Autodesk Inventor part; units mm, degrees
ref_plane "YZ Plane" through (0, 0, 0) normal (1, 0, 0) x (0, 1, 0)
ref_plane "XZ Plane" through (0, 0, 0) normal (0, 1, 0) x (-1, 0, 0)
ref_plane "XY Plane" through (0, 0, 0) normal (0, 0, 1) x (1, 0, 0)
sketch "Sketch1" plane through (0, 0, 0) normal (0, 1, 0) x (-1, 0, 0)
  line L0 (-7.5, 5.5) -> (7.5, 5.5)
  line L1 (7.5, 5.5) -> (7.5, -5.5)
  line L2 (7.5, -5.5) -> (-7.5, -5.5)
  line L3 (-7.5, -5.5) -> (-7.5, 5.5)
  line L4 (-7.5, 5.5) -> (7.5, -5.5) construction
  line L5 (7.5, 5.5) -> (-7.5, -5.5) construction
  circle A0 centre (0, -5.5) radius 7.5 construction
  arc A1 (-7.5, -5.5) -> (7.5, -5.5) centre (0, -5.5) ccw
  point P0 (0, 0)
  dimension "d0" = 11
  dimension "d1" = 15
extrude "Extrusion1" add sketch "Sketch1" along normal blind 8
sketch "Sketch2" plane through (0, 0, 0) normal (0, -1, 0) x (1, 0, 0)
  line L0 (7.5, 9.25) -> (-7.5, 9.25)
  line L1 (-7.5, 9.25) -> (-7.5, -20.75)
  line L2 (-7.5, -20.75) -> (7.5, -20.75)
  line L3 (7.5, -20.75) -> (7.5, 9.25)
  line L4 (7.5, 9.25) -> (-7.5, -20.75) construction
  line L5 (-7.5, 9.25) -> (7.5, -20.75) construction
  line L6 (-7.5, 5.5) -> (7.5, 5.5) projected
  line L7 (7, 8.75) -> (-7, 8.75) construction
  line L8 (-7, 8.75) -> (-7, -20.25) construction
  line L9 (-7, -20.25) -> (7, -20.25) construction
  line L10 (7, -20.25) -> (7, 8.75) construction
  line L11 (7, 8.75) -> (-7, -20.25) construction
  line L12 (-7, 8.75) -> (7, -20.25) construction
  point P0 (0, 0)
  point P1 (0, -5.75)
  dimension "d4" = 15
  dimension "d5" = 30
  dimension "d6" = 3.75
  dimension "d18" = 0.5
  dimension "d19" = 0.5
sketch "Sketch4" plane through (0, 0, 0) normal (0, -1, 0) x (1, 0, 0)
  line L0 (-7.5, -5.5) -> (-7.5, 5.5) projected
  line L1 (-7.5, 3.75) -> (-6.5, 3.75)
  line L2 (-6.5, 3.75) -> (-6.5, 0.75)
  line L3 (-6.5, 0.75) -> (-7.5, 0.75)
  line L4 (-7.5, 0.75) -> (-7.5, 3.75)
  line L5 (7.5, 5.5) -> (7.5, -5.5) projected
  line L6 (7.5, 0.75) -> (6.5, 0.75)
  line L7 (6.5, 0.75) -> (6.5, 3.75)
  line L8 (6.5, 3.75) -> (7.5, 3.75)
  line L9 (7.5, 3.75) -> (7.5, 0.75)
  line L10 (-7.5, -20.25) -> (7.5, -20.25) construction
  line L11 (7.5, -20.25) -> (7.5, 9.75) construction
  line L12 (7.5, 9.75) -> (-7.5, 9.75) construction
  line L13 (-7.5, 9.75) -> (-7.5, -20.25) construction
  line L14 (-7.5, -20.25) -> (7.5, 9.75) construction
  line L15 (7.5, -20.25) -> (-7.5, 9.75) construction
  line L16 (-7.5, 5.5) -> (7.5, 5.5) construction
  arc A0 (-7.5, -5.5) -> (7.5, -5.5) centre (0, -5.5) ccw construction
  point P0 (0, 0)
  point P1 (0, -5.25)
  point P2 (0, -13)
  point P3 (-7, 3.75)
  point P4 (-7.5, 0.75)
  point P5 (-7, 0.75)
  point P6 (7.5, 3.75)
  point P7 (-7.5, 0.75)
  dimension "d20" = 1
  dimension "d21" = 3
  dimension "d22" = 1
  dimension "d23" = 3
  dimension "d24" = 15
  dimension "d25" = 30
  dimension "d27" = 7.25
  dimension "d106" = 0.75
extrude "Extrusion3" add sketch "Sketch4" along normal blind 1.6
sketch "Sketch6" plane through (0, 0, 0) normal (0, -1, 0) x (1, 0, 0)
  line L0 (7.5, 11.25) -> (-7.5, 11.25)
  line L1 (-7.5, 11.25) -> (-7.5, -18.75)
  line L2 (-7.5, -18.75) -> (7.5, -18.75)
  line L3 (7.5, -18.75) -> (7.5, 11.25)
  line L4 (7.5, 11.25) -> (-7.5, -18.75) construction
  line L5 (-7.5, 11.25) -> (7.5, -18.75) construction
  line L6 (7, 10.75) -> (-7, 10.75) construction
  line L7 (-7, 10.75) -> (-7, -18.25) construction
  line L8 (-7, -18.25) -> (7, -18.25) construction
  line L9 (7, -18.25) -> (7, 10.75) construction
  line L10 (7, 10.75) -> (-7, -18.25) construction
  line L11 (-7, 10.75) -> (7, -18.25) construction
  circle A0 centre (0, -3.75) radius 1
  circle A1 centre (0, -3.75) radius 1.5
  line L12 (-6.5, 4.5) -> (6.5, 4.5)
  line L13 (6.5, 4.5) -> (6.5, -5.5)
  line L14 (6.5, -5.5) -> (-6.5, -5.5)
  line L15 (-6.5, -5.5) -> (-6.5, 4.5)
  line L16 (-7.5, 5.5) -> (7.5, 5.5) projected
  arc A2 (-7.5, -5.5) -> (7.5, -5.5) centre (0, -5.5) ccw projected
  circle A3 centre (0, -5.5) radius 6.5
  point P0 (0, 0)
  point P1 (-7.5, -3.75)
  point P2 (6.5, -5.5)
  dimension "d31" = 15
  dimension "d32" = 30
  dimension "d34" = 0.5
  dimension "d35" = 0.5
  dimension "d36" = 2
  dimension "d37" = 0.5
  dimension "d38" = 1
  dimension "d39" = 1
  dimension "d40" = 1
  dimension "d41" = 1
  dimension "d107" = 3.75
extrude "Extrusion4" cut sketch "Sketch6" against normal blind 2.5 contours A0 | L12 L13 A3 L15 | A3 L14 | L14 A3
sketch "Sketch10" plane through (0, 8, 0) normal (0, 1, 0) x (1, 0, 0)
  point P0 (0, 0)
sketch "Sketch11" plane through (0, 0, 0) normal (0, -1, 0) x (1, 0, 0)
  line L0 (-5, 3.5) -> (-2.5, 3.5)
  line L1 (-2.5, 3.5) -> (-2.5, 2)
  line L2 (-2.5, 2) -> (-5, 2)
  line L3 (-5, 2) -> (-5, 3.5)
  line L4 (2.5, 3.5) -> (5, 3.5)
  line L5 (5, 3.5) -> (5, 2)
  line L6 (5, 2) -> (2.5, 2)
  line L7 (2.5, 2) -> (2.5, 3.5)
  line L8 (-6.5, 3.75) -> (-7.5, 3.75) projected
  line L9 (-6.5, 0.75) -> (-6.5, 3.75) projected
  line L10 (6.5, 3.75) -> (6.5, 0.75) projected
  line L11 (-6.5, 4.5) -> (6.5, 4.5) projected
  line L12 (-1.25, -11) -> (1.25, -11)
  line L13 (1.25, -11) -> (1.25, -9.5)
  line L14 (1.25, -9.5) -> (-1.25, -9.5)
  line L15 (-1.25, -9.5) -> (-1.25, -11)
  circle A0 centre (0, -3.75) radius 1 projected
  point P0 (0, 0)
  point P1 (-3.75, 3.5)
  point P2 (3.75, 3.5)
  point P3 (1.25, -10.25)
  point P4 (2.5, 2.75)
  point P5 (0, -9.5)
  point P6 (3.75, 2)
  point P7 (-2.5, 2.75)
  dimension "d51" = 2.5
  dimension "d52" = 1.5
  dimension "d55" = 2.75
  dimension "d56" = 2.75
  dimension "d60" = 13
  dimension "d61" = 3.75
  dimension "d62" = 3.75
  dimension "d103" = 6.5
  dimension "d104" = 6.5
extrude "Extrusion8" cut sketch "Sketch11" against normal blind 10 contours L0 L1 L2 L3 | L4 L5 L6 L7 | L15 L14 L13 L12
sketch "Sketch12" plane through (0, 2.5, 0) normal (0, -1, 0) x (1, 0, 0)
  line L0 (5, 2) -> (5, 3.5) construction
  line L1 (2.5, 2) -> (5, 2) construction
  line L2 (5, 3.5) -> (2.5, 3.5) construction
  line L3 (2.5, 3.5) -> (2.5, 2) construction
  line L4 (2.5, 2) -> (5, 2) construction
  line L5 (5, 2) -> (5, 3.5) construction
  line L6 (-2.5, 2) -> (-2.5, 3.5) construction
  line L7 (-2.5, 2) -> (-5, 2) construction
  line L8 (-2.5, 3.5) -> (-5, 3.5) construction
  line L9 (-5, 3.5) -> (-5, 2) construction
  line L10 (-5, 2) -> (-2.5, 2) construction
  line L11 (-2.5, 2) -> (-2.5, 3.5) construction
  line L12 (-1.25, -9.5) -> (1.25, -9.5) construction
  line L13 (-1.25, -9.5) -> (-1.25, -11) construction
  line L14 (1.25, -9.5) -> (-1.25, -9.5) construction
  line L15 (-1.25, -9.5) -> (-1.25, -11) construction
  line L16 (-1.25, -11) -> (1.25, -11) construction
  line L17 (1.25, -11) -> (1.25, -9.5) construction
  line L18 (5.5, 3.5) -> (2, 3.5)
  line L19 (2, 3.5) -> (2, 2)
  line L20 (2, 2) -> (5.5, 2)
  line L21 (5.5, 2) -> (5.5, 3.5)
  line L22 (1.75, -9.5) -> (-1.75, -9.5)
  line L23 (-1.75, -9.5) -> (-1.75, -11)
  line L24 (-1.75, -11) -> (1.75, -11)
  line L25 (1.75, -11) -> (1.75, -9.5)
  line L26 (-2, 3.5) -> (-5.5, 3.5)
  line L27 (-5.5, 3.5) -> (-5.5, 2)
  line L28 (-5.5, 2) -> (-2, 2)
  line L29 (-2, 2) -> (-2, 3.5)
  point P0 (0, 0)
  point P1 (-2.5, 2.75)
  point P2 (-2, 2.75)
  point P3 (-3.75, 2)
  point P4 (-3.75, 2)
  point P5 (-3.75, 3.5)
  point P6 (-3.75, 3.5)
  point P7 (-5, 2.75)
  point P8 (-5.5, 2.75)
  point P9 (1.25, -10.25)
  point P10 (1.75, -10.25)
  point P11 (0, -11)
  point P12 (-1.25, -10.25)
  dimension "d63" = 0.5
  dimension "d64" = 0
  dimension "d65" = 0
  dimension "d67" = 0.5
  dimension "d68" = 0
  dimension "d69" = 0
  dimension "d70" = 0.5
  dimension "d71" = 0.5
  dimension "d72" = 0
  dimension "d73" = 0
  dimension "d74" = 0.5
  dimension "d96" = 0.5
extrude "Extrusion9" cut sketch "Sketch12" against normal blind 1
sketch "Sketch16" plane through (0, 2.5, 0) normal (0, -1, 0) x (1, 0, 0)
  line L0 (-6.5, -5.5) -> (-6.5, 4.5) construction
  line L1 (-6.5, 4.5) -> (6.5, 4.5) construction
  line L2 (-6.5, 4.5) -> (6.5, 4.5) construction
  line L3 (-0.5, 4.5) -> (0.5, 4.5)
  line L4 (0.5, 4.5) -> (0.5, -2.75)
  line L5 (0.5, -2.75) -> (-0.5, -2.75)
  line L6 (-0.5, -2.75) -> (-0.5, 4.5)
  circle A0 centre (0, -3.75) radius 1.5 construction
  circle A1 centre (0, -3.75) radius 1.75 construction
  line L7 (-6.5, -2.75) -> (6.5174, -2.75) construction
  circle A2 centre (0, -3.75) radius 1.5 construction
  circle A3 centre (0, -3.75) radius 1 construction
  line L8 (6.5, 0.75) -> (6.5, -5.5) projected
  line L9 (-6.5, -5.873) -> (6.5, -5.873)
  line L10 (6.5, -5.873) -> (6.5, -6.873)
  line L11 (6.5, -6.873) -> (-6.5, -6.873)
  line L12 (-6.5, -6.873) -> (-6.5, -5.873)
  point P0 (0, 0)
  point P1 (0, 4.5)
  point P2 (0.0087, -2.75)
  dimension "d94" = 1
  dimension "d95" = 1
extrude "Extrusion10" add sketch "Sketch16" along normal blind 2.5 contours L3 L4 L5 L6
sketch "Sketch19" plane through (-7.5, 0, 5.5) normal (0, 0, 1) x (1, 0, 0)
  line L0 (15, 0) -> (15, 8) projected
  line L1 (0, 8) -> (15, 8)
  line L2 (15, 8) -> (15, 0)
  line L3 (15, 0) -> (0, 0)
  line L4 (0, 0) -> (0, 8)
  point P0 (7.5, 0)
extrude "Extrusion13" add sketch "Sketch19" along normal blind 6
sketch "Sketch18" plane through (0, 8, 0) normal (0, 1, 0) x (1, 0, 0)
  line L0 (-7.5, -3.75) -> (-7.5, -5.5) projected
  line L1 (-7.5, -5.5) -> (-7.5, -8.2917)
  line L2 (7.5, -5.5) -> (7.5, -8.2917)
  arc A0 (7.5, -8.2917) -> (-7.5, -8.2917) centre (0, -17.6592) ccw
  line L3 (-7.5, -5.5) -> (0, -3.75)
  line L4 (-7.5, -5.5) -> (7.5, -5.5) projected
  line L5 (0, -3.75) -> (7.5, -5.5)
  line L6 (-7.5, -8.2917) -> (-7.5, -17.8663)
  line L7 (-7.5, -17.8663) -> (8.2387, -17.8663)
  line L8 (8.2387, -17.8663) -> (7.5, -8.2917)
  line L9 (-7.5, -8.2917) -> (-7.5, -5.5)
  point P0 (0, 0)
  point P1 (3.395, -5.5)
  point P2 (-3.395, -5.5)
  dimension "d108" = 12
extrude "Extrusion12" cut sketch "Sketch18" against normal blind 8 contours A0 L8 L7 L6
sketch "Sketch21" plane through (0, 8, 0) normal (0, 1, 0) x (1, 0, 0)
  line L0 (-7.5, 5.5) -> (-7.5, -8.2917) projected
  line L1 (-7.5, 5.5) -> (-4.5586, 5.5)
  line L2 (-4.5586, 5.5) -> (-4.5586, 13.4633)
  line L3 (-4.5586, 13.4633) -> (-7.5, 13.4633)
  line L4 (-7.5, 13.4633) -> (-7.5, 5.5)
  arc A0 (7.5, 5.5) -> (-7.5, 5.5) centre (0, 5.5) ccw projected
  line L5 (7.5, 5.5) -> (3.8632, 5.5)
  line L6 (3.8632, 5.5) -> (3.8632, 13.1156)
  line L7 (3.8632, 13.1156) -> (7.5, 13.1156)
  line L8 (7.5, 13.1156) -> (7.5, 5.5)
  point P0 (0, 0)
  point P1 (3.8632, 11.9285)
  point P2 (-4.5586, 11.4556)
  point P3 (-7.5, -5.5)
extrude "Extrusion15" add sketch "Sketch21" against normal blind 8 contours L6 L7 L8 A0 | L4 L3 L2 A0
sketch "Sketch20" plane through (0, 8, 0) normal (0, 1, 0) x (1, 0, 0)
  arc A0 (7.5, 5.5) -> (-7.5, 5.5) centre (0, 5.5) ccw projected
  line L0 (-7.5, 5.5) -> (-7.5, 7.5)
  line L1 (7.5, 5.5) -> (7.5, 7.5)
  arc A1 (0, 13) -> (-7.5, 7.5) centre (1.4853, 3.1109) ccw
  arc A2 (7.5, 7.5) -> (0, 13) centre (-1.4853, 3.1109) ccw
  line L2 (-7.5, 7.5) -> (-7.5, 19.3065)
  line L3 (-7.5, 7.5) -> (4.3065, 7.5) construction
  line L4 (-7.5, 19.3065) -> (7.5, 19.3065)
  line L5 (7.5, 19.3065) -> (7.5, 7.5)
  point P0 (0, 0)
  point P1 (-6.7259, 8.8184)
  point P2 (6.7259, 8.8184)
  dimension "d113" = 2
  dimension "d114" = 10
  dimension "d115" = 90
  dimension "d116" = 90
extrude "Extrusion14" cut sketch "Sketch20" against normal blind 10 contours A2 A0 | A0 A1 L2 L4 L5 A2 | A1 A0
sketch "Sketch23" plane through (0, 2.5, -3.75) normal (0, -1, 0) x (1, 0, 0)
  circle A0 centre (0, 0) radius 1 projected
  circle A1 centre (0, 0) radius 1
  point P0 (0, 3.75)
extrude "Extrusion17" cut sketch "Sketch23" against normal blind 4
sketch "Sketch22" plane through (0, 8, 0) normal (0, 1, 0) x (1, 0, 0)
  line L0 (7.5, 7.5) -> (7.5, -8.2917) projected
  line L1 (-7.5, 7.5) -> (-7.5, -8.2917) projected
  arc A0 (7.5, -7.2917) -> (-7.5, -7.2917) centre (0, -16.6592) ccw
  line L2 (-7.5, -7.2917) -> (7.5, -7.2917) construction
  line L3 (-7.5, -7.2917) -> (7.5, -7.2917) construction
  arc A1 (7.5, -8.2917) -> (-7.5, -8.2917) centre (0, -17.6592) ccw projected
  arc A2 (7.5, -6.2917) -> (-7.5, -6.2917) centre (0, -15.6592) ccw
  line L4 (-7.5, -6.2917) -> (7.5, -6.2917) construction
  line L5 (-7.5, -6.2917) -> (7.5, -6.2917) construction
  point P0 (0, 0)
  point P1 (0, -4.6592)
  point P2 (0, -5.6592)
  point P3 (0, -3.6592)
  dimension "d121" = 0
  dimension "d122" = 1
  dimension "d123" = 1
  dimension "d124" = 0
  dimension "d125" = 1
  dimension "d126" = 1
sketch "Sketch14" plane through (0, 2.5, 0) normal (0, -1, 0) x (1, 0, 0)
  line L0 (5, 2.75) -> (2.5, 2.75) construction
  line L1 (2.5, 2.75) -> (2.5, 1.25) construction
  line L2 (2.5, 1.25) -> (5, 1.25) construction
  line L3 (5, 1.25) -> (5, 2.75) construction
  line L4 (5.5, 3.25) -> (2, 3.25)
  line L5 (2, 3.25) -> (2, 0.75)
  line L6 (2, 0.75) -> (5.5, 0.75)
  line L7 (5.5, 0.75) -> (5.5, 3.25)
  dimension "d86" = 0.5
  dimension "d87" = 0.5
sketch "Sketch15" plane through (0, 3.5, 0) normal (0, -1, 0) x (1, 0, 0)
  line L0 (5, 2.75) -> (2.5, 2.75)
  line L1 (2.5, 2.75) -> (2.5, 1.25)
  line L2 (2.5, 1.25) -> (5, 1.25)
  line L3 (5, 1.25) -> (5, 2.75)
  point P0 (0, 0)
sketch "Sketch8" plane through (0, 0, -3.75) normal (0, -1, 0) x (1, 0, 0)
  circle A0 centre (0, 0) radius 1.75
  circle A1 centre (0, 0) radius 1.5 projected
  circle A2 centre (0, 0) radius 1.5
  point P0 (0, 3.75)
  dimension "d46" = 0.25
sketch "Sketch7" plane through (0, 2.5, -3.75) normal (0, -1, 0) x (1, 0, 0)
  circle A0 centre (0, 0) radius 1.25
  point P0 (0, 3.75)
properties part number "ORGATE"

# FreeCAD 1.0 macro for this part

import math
import FreeCAD as App
import Part
import Sketcher
from FreeCAD import Vector


def add_polygon(sketch, points):
    """Adds a closed chain of lines whose ends are joined by coincident constraints."""
    first, n = sketch.GeometryCount, len(points)
    for a, b in zip(points, points[1:] + points[:1]):
        sketch.addGeometry(Part.LineSegment(App.Vector(*a, 0), App.Vector(*b, 0)), False)
    for i in range(n):
        sketch.addConstraint(Sketcher.Constraint("Coincident", first + i, 2, first + (i + 1) % n, 1))

doc = App.newDocument("Part")
body = doc.addObject("PartDesign::Body", "Body")

# Sketch on XZ plane
sketch1 = body.newObject("Sketcher::SketchObject", "Sketch")
sketch1.AttachmentSupport = (doc.getObject("XZ_Plane"), [""])
sketch1.MapMode = "FlatFace"
sketch1.addGeometry([
    Part.LineSegment(Vector(-8, 6, 0), Vector(8, 6, 0)),
    Part.LineSegment(Vector(8, 6, 0), Vector(8, -6, 0)),
    Part.ArcOfCircle(Part.Circle(Vector(0, -6, 0), Vector(0, 0, 1), 8), math.radians(180), math.radians(360)),
    Part.LineSegment(Vector(-8, -6, 0), Vector(-8, 6, 0)),
], False)
sketch1.addConstraint([
    Sketcher.Constraint("Coincident", 0, 2, 1, 1),
    Sketcher.Constraint("Tangent", 1, 2, 2, 2),
    Sketcher.Constraint("Tangent", 2, 1, 3, 1),
    Sketcher.Constraint("Coincident", 3, 2, 0, 1),
    Sketcher.Constraint("Horizontal", 0),
    Sketcher.Constraint("Vertical", 1),
    Sketcher.Constraint("Vertical", 3),
    Sketcher.Constraint("Symmetric", 0, 2, 2, 1, -1, 1),
    Sketcher.Constraint("Radius", 2, 7.5),
    Sketcher.Constraint("DistanceY", 1, 2, 1, 1, 11.0),
])
pad1 = body.newObject("PartDesign::Pad", "Pad")
pad1.Profile = sketch1
pad1.Length = 8
pad1.Reversed = True

# Sketch on XZ plane
sketch2 = body.newObject("Sketcher::SketchObject", "Sketch001")
sketch2.AttachmentSupport = (doc.getObject("XZ_Plane"), [""])
sketch2.MapMode = "FlatFace"
add_polygon(sketch2, [(-7.5, 3.8), (-7.5, 0.8), (-6.5, 0.8), (-6.5, 3.8)])  # lines 0-3
add_polygon(sketch2, [(7.5, 0.8), (7.5, 3.8), (6.5, 3.8), (6.5, 0.8)])  # lines 4-7
sketch2.addConstraint([
    Sketcher.Constraint("Vertical", 0),
    Sketcher.Constraint("Horizontal", 1),
    Sketcher.Constraint("Vertical", 2),
    Sketcher.Constraint("Horizontal", 3),
    Sketcher.Constraint("Vertical", 4),
    Sketcher.Constraint("Horizontal", 5),
    Sketcher.Constraint("Vertical", 6),
    Sketcher.Constraint("Horizontal", 7),
    Sketcher.Constraint("Symmetric", 3, 2, 4, 2, -2),
    Sketcher.Constraint("Symmetric", 1, 2, 6, 2, -2),
    Sketcher.Constraint("DistanceX", 1, 1, 1, 2, 1.0),
    Sketcher.Constraint("DistanceY", 0, 2, 0, 1, 3.0),
    Sketcher.Constraint("DistanceX", 3, 2, 4, 2, 15.0),
    Sketcher.Constraint("DistanceY", -1, 1, 0, 2, 0.75),
])
pad2 = body.newObject("PartDesign::Pad", "Pad001")
pad2.Profile = sketch2
pad2.Length = 1.6

# Sketch on XZ plane
sketch3 = body.newObject("Sketcher::SketchObject", "Sketch002")
sketch3.AttachmentSupport = (doc.getObject("XZ_Plane"), [""])
sketch3.MapMode = "FlatFace"
sketch3.addGeometry([
    Part.Circle(Vector(0, -3.8, 0), Vector(0, 0, 1), 1),  # 0
    Part.LineSegment(Vector(6.5, 4.5, 0), Vector(-6.5, 4.5, 0)),  # 1
    Part.LineSegment(Vector(-6.5, 4.5, 0), Vector(-6.5, -5.5, 0)),  # 2
    Part.ArcOfCircle(Part.Circle(Vector(0, -5.5, 0), Vector(0, 0, 1), 6.5), math.radians(180), math.radians(360)),  # 3
    Part.LineSegment(Vector(6.5, -5.5, 0), Vector(6.5, 4.5, 0)),  # 4
    Part.Circle(Vector(0, -3.8, 0), Vector(0, 0, 1), 1.5),  # 5
], False)
sketch3.addConstraint([
    Sketcher.Constraint("Coincident", 1, 2, 2, 1),
    Sketcher.Constraint("Tangent", 2, 2, 3, 1),
    Sketcher.Constraint("Tangent", 3, 2, 4, 1),
    Sketcher.Constraint("Coincident", 4, 2, 1, 1),
    Sketcher.Constraint("Horizontal", 1),
    Sketcher.Constraint("Vertical", 2),
    Sketcher.Constraint("Vertical", 4),
    Sketcher.Constraint("Coincident", 5, 3, 0, 3),
    Sketcher.Constraint("PointOnObject", 0, 3, -2),
    Sketcher.Constraint("PointOnObject", 3, 3, -2),
    Sketcher.Constraint("Diameter", 0, 2.0),
    Sketcher.Constraint("Diameter", 5, 3.0),
    Sketcher.Constraint("Radius", 3, 6.5),
    Sketcher.Constraint("DistanceY", 2, 2, 2, 1, 10.0),
    Sketcher.Constraint("DistanceY", 0, 3, -1, 1, 3.75),
    Sketcher.Constraint("DistanceY", 3, 3, -1, 1, 5.5),
])
pocket1 = body.newObject("PartDesign::Pocket", "Pocket")
pocket1.Profile = sketch3
pocket1.Length = 2.5

# Sketch on XZ plane
sketch4 = body.newObject("Sketcher::SketchObject", "Sketch003")
sketch4.AttachmentSupport = (doc.getObject("XZ_Plane"), [""])
sketch4.MapMode = "FlatFace"
add_polygon(sketch4, [(-2.5, 3.5), (-5, 3.5), (-5, 2), (-2.5, 2)])  # lines 0-3
add_polygon(sketch4, [(5, 3.5), (2.5, 3.5), (2.5, 2), (5, 2)])  # lines 4-7
add_polygon(sketch4, [(-1.2, -9.5), (-1.2, -11), (1.2, -11), (1.2, -9.5)])  # lines 8-11
sketch4.addConstraint([
    Sketcher.Constraint("Horizontal", 0),
    Sketcher.Constraint("Vertical", 1),
    Sketcher.Constraint("Horizontal", 2),
    Sketcher.Constraint("Vertical", 3),
    Sketcher.Constraint("Horizontal", 4),
    Sketcher.Constraint("Vertical", 5),
    Sketcher.Constraint("Horizontal", 6),
    Sketcher.Constraint("Vertical", 7),
    Sketcher.Constraint("Vertical", 8),
    Sketcher.Constraint("Horizontal", 9),
    Sketcher.Constraint("Vertical", 10),
    Sketcher.Constraint("Horizontal", 11),
    Sketcher.Constraint("Symmetric", 3, 2, 4, 2, -2),
    Sketcher.Constraint("Symmetric", 1, 2, 6, 2, -2),
    Sketcher.Constraint("Equal", 6, 9),
    Sketcher.Constraint("Equal", 7, 8),
    Sketcher.Constraint("DistanceX", 0, 2, 0, 1, 2.5),
    Sketcher.Constraint("DistanceY", 1, 2, 1, 1, 1.5),
    Sketcher.Constraint("DistanceY", 8, 2, 2, 2, 13.0),
    Sketcher.Constraint("DistanceX", 2, 2, -1, 1, 2.5),
    Sketcher.Constraint("DistanceX", 1, 2, 8, 2, 3.75),
    Sketcher.Constraint("DistanceY", -1, 1, 1, 2, 2.0),
])
pocket2 = body.newObject("PartDesign::Pocket", "Pocket001")
pocket2.Profile = sketch4
pocket2.Length = 10

# Sketch on XZ plane
sketch5 = body.newObject("Sketcher::SketchObject", "Sketch004")
sketch5.AttachmentSupport = (doc.getObject("XZ_Plane"), [""])
sketch5.MapMode = "FlatFace"
sketch5.AttachmentOffset = App.Placement(Vector(0, 0, -2.5), App.Rotation())
add_polygon(sketch5, [(5.5, 2), (5.5, 3.5), (2, 3.5), (2, 2)])  # lines 0-3
add_polygon(sketch5, [(1.8, -11), (1.8, -9.5), (-1.8, -9.5), (-1.8, -11)])  # lines 4-7
add_polygon(sketch5, [(-2, 2), (-2, 3.5), (-5.5, 3.5), (-5.5, 2)])  # lines 8-11
sketch5.addConstraint([
    Sketcher.Constraint("Vertical", 0),
    Sketcher.Constraint("Horizontal", 1),
    Sketcher.Constraint("Vertical", 2),
    Sketcher.Constraint("Horizontal", 3),
    Sketcher.Constraint("Vertical", 4),
    Sketcher.Constraint("Horizontal", 5),
    Sketcher.Constraint("Vertical", 6),
    Sketcher.Constraint("Horizontal", 7),
    Sketcher.Constraint("Vertical", 8),
    Sketcher.Constraint("Horizontal", 9),
    Sketcher.Constraint("Vertical", 10),
    Sketcher.Constraint("Horizontal", 11),
    Sketcher.Constraint("Symmetric", 1, 2, 8, 2, -2),
    Sketcher.Constraint("Symmetric", 3, 2, 10, 2, -2),
    Sketcher.Constraint("Equal", 3, 5),
    Sketcher.Constraint("Equal", 2, 4),
    Sketcher.Constraint("DistanceX", 1, 2, 1, 1, 3.5),
    Sketcher.Constraint("DistanceY", 0, 1, 0, 2, 1.5),
    Sketcher.Constraint("DistanceX", -1, 1, 1, 2, 2.0),
    Sketcher.Constraint("DistanceY", -1, 1, 2, 2, 2.0),
    Sketcher.Constraint("DistanceY", 6, 2, -1, 1, 11.0),
    Sketcher.Constraint("DistanceX", -1, 1, 4, 2, 1.75),
])
pocket3 = body.newObject("PartDesign::Pocket", "Pocket002")
pocket3.Profile = sketch5
pocket3.Length = 1

# Sketch on XZ plane
sketch6 = body.newObject("Sketcher::SketchObject", "Sketch005")
sketch6.AttachmentSupport = (doc.getObject("XZ_Plane"), [""])
sketch6.MapMode = "FlatFace"
sketch6.AttachmentOffset = App.Placement(Vector(0, 0, -2.5), App.Rotation())
add_polygon(sketch6, [(0.5, 4.5), (-0.5, 4.5), (-0.5, -2.8), (0.5, -2.8)])  # lines 0-3
sketch6.addConstraint([
    Sketcher.Constraint("Horizontal", 0),
    Sketcher.Constraint("Vertical", 1),
    Sketcher.Constraint("Horizontal", 2),
    Sketcher.Constraint("Vertical", 3),
    Sketcher.Constraint("DistanceX", 0, 2, 0, 1, 1.0),
    Sketcher.Constraint("DistanceY", 1, 2, 1, 1, 7.25),
    Sketcher.Constraint("DistanceX", 0, 2, -1, 1, 0.5),
    Sketcher.Constraint("DistanceY", -1, 1, 0, 2, 4.5),
])
pad3 = body.newObject("PartDesign::Pad", "Pad002")
pad3.Profile = sketch6
pad3.Length = 2.5

# Sketch on XY plane
sketch7 = body.newObject("Sketcher::SketchObject", "Sketch006")
sketch7.AttachmentSupport = (doc.getObject("XY_Plane"), [""])
sketch7.MapMode = "FlatFace"
sketch7.AttachmentOffset = App.Placement(Vector(0, 0, 5.5), App.Rotation())
add_polygon(sketch7, [(-8, 0), (8, 0), (8, 8), (-8, 8)])  # lines 0-3
sketch7.addConstraint([
    Sketcher.Constraint("Horizontal", 0),
    Sketcher.Constraint("Vertical", 1),
    Sketcher.Constraint("Horizontal", 2),
    Sketcher.Constraint("Vertical", 3),
    Sketcher.Constraint("Symmetric", 0, 2, 3, 2, -1, 1),
    Sketcher.Constraint("DistanceX", 0, 1, 0, 2, 15.0),
    Sketcher.Constraint("DistanceY", 1, 1, 1, 2, 8.0),
])
pad4 = body.newObject("PartDesign::Pad", "Pad003")
pad4.Profile = sketch7
pad4.Length = 6

# Sketch on XZ plane
sketch8 = body.newObject("Sketcher::SketchObject", "Sketch007")
sketch8.AttachmentSupport = (doc.getObject("XZ_Plane"), [""])
sketch8.MapMode = "FlatFace"
sketch8.AttachmentOffset = App.Placement(Vector(0, 0, -8), App.Rotation())
sketch8.addGeometry([
    Part.ArcOfCircle(Part.Circle(Vector(0, 18, 0), Vector(0, 0, 1), 12), math.radians(-129), math.radians(-51)),
    Part.LineSegment(Vector(-8, 8, 0), Vector(-8, 18, 0)),
    Part.LineSegment(Vector(-8, 18, 0), Vector(8, 18, 0)),
    Part.LineSegment(Vector(8, 18, 0), Vector(8, 8, 0)),
], False)
sketch8.addConstraint([
    Sketcher.Constraint("Coincident", 0, 1, 1, 1),
    Sketcher.Constraint("Coincident", 1, 2, 2, 1),
    Sketcher.Constraint("Coincident", 2, 2, 3, 1),
    Sketcher.Constraint("Coincident", 3, 2, 0, 2),
    Sketcher.Constraint("Vertical", 1),
    Sketcher.Constraint("Horizontal", 2),
    Sketcher.Constraint("Symmetric", 0, 1, 3, 2, -2),
    Sketcher.Constraint("Radius", 0, 12.0),
    Sketcher.Constraint("DistanceX", 0, 1, 3, 2, 15.0),
    Sketcher.Constraint("Distance", 3, 9.603),
    Sketcher.Constraint("DistanceX", 2, 1, 2, 2, 15.7387),
    Sketcher.Constraint("DistanceY", -1, 1, 0, 3, 17.6592),
])
pocket4 = body.newObject("PartDesign::Pocket", "Pocket003")
pocket4.Profile = sketch8
pocket4.Length = 8
pocket4.Reversed = True

# Sketch on XZ plane
sketch9 = body.newObject("Sketcher::SketchObject", "Sketch008")
sketch9.AttachmentSupport = (doc.getObject("XZ_Plane"), [""])
sketch9.MapMode = "FlatFace"
sketch9.AttachmentOffset = App.Placement(Vector(0, 0, -8), App.Rotation())
sketch9.addGeometry([
    Part.LineSegment(Vector(3.9, -13.1, 0), Vector(3.9, -11.9, 0)),  # 0
    Part.ArcOfCircle(Part.Circle(Vector(0, -5.5, 0), Vector(0, 0, 1), 7.5), math.radians(-59), math.radians(0)),  # 1
    Part.LineSegment(Vector(7.5, -5.5, 0), Vector(7.5, -13.1, 0)),  # 2
    Part.LineSegment(Vector(7.5, -13.1, 0), Vector(3.9, -13.1, 0)),  # 3
    Part.LineSegment(Vector(-7.5, -13.5, 0), Vector(-7.5, -5.5, 0)),  # 4
    Part.ArcOfCircle(Part.Circle(Vector(0, -5.5, 0), Vector(0, 0, 1), 7.5), math.radians(180), math.radians(233)),  # 5
    Part.LineSegment(Vector(-4.6, -11.5, 0), Vector(-4.6, -13.5, 0)),  # 6
    Part.LineSegment(Vector(-4.6, -13.5, 0), Vector(-7.5, -13.5, 0)),  # 7
], False)
sketch9.addConstraint([
    Sketcher.Constraint("Coincident", 0, 2, 1, 1),
    Sketcher.Constraint("Tangent", 1, 2, 2, 1),
    Sketcher.Constraint("Coincident", 2, 2, 3, 1),
    Sketcher.Constraint("Coincident", 3, 2, 0, 1),
    Sketcher.Constraint("Tangent", 4, 2, 5, 1),
    Sketcher.Constraint("Coincident", 5, 2, 6, 1),
    Sketcher.Constraint("Coincident", 6, 2, 7, 1),
    Sketcher.Constraint("Coincident", 7, 2, 4, 1),
    Sketcher.Constraint("Vertical", 0),
    Sketcher.Constraint("Vertical", 2),
    Sketcher.Constraint("Horizontal", 3),
    Sketcher.Constraint("Vertical", 4),
    Sketcher.Constraint("Vertical", 6),
    Sketcher.Constraint("Horizontal", 7),
    Sketcher.Constraint("Coincident", 5, 3, 1, 3),
    Sketcher.Constraint("Equal", 1, 5),
    Sketcher.Constraint("PointOnObject", 1, 3, -2),
    Sketcher.Constraint("Radius", 1, 7.5),
    Sketcher.Constraint("DistanceY", 1, 3, -1, 1, 5.5),
    Sketcher.Constraint("DistanceY", 0, 1, 0, 2, 1.187),
    Sketcher.Constraint("DistanceY", 3, 2, 5, 2, 1.66),
    Sketcher.Constraint("DistanceX", 3, 2, 3, 1, 3.6368),
    Sketcher.Constraint("DistanceY", 4, 1, 4, 2, 7.9633),
])
pad5 = body.newObject("PartDesign::Pad", "Pad004")
pad5.Profile = sketch9
pad5.Length = 8

# Sketch on XZ plane
sketch10 = body.newObject("Sketcher::SketchObject", "Sketch009")
sketch10.AttachmentSupport = (doc.getObject("XZ_Plane"), [""])
sketch10.MapMode = "FlatFace"
sketch10.AttachmentOffset = App.Placement(Vector(0, 0, -8), App.Rotation())
sketch10.addGeometry([
    Part.ArcOfCircle(Part.Circle(Vector(-1, -3, 0), Vector(0, 0, 1), 10), math.radians(-81), math.radians(-26)),  # 0
    Part.LineSegment(Vector(8, -8, 0), Vector(8, -19, 0)),  # 1
    Part.LineSegment(Vector(8, -19, 0), Vector(-8, -19, 0)),  # 2
    Part.LineSegment(Vector(-8, -19, 0), Vector(-8, -8, 0)),  # 3
    Part.ArcOfCircle(Part.Circle(Vector(1, -3, 0), Vector(0, 0, 1), 10), math.radians(-154), math.radians(-99)),  # 4
], False)
sketch10.addConstraint([
    Sketcher.Constraint("Coincident", 0, 2, 1, 1),
    Sketcher.Constraint("Coincident", 1, 2, 2, 1),
    Sketcher.Constraint("Coincident", 2, 2, 3, 1),
    Sketcher.Constraint("Coincident", 3, 2, 4, 1),
    Sketcher.Constraint("Coincident", 4, 2, 0, 1),
    Sketcher.Constraint("Vertical", 1),
    Sketcher.Constraint("Horizontal", 2),
    Sketcher.Constraint("Vertical", 3),
    Sketcher.Constraint("Equal", 0, 4),
    Sketcher.Constraint("Symmetric", 0, 3, 4, 3, -2),
    Sketcher.Constraint("Horizontal", 0, 2, 3, 2),
    Sketcher.Constraint("Radius", 0, 10.0),
    Sketcher.Constraint("DistanceX", 2, 2, 2, 1, 15.0),
    Sketcher.Constraint("DistanceY", 4, 2, -1, 1, 13.0),
    Sketcher.Constraint("DistanceY", 0, 2, -1, 1, 7.5),
    Sketcher.Constraint("DistanceY", 1, 2, 1, 1, 11.8065),
])
pocket5 = body.newObject("PartDesign::Pocket", "Pocket004")
pocket5.Profile = sketch10
pocket5.Length = 10
pocket5.Reversed = True

# Sketch on XZ plane
sketch11 = body.newObject("Sketcher::SketchObject", "Sketch010")
sketch11.AttachmentSupport = (doc.getObject("XZ_Plane"), [""])
sketch11.MapMode = "FlatFace"
sketch11.AttachmentOffset = App.Placement(Vector(0, 0, -2.5), App.Rotation())
sketch11.addGeometry(Part.Circle(Vector(0, -3.8, 0), Vector(0, 0, 1), 1), False)
sketch11.addConstraint([
    Sketcher.Constraint("PointOnObject", 0, 3, -2),
    Sketcher.Constraint("Diameter", 0, 2.0),
    Sketcher.Constraint("DistanceY", 0, 3, -1, 1, 3.75),
])
pocket6 = body.newObject("PartDesign::Pocket", "Pocket005")
pocket6.Profile = sketch11
pocket6.Length = 4

doc.recompute()
